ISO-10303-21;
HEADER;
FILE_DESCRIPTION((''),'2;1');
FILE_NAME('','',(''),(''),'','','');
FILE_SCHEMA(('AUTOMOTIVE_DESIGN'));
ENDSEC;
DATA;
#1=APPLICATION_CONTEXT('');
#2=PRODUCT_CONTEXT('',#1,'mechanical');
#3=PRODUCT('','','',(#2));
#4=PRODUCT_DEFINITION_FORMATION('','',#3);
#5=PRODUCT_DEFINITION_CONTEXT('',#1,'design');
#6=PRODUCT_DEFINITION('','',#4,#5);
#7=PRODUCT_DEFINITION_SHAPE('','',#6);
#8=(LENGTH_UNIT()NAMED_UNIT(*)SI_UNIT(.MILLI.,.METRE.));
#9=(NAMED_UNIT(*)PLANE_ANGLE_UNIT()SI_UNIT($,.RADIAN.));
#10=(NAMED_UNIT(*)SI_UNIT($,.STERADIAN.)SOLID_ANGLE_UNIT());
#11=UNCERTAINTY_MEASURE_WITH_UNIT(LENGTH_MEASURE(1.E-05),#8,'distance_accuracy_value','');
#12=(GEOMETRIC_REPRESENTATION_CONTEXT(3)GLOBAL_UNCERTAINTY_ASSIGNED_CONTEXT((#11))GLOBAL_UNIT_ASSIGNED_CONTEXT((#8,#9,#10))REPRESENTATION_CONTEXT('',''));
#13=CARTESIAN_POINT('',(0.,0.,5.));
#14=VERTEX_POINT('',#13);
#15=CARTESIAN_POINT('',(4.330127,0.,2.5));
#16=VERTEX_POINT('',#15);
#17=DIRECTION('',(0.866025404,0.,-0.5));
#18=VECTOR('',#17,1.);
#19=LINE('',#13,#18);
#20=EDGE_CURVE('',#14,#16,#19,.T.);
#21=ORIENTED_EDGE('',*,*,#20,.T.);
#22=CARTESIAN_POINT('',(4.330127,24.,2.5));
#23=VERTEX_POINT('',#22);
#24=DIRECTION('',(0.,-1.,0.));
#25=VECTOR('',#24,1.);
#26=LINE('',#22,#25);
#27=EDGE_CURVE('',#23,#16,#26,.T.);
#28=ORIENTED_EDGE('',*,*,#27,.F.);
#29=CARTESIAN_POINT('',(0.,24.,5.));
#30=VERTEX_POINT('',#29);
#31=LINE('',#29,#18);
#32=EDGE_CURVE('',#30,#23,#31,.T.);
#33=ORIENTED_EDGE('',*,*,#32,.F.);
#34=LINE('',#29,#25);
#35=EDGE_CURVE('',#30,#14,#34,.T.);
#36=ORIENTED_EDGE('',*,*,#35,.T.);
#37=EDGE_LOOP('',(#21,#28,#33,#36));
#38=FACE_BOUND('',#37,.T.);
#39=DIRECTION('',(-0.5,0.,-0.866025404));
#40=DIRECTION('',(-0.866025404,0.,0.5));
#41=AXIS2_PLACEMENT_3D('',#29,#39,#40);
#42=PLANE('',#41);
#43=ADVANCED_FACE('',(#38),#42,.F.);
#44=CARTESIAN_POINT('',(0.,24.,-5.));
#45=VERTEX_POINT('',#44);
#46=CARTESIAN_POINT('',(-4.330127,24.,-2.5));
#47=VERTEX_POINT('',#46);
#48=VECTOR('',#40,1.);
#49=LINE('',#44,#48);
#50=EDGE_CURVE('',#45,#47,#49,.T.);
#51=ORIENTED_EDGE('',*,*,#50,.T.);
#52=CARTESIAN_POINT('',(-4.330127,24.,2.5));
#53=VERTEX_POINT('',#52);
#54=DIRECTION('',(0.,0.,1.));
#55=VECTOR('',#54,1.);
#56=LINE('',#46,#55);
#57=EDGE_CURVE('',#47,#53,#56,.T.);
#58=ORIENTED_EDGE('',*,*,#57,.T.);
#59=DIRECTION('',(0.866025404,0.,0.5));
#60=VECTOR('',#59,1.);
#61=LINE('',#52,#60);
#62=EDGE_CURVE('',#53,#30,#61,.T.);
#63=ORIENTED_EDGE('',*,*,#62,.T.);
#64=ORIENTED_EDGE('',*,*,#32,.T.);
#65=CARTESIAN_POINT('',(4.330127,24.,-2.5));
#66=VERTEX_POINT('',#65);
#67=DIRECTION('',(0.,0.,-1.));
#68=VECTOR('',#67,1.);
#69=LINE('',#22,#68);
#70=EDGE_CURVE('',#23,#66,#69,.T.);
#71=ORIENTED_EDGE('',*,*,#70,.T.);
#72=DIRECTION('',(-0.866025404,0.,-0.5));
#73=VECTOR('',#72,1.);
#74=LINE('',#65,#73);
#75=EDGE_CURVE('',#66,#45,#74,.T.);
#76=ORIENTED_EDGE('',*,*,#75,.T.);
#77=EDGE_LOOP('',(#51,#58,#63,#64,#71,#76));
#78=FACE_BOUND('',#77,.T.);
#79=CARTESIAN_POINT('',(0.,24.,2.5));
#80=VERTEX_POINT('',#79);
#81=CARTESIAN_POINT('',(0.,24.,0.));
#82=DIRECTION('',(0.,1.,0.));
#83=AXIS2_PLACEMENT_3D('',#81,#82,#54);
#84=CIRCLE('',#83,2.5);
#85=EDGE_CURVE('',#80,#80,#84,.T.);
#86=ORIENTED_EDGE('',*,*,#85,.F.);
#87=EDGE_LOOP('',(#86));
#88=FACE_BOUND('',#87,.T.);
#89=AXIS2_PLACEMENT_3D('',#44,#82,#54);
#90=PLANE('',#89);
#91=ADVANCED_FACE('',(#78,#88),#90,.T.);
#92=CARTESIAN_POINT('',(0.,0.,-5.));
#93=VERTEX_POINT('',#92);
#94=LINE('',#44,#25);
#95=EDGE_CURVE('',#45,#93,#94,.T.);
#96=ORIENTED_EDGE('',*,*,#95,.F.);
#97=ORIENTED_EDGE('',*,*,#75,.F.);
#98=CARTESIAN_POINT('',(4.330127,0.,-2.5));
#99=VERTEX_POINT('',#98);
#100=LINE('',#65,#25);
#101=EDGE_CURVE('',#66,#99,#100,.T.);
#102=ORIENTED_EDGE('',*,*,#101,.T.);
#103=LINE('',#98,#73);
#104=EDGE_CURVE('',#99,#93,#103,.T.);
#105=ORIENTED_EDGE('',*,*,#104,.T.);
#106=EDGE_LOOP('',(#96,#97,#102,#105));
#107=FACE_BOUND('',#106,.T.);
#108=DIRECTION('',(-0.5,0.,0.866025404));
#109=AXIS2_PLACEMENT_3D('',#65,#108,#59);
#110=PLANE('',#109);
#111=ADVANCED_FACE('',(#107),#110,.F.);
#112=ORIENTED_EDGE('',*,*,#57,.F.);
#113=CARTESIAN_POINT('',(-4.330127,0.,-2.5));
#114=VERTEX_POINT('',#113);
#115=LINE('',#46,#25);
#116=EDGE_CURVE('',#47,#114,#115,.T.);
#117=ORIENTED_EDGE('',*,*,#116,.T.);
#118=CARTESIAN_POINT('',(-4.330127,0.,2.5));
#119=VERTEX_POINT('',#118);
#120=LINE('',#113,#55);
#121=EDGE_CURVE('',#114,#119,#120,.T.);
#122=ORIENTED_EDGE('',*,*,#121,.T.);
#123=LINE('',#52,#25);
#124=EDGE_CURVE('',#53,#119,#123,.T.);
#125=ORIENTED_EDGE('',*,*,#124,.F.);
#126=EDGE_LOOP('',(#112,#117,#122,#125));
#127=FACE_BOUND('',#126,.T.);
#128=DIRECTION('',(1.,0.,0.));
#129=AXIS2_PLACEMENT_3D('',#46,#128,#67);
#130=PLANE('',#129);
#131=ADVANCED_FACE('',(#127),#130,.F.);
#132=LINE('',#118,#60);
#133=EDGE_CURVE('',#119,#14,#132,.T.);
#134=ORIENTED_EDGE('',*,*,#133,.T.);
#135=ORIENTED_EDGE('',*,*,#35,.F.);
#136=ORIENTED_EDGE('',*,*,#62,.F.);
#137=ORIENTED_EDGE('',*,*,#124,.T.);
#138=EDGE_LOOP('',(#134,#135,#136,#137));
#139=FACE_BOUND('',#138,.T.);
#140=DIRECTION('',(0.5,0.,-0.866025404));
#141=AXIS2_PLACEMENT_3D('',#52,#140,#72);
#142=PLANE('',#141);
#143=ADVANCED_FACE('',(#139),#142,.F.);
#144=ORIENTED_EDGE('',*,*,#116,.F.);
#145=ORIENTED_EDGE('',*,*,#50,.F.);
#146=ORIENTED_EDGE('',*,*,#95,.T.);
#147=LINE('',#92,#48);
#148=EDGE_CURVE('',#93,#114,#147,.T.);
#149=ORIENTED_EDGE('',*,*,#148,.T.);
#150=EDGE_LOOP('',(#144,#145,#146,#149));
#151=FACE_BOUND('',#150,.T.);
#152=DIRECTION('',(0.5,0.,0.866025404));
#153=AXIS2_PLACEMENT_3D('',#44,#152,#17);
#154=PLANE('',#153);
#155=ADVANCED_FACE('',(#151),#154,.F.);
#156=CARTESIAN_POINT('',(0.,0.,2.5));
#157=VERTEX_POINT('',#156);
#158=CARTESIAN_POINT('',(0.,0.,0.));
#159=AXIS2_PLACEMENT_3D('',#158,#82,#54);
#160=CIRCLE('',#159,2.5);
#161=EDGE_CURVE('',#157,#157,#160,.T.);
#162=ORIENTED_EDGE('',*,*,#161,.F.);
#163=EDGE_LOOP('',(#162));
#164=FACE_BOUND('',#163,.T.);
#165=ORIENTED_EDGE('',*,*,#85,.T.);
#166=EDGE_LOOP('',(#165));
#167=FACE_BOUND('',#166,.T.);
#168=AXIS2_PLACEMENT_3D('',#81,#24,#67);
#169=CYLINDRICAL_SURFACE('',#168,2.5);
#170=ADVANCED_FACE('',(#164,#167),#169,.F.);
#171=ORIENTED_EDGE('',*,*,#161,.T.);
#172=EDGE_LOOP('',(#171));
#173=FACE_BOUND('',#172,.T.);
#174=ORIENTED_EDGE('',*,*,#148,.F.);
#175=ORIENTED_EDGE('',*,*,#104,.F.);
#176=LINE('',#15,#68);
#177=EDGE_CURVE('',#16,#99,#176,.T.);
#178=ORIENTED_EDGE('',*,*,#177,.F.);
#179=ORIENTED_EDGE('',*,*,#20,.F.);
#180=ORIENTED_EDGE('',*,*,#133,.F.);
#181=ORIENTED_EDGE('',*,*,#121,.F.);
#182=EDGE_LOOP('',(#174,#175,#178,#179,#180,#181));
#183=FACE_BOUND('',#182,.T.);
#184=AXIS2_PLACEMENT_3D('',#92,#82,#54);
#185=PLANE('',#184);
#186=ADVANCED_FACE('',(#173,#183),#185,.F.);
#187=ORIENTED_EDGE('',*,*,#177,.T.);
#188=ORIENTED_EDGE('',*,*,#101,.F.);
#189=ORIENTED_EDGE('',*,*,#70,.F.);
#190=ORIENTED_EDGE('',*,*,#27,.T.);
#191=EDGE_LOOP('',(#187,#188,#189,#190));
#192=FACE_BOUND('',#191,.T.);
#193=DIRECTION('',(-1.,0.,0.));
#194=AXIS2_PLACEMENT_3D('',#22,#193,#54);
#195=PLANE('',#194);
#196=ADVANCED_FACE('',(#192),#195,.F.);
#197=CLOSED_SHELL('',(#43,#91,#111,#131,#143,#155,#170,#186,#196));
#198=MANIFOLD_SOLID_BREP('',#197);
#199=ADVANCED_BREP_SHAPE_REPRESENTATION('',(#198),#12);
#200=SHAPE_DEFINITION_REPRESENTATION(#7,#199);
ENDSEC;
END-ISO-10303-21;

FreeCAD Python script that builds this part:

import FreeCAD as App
import Part
import Sketcher
Q = App.Units.Quantity


def add_polygon(sketch, points):
    """Adds a closed chain of lines whose ends are joined by coincident constraints."""
    first, n = sketch.GeometryCount, len(points)
    for a, b in zip(points, points[1:] + points[:1]):
        sketch.addGeometry(Part.LineSegment(App.Vector(*a, 0), App.Vector(*b, 0)), False)
    for i in range(n):
        sketch.addConstraint(Sketcher.Constraint("Coincident", first + i, 2, first + (i + 1) % n, 1))

doc = App.newDocument("Part")
body = doc.addObject("PartDesign::Body", "Body")

# Sketch on XZ plane
sketch1 = doc.addObject("Sketcher::SketchObject", "Sketch")
body.addObject(sketch1)
sketch1.AttachmentSupport = (doc.XZ_Plane, [""])
sketch1.MapMode = "FlatFace"
add_polygon(sketch1, [(0, -5), (-4.3, -2.5), (-4.3, 2.5), (0, 5), (4.3, 2.5), (4.3, -2.5)])  # lines 0-5
sketch1.addGeometry(Part.Circle(App.Vector(0, 0, 0), App.Vector(0, 0, 1), 2.5), False)  # 6
sketch1.addConstraint(Sketcher.Constraint("Vertical", 1))
sketch1.addConstraint(Sketcher.Constraint("Vertical", 4))
sketch1.addConstraint(Sketcher.Constraint("Coincident", 6, 3, -1, 1))
sketch1.addConstraint(Sketcher.Constraint("Symmetric", 0, 2, 3, 2, -1, 1))
sketch1.addConstraint(Sketcher.Constraint("Symmetric", 2, 2, 5, 2, -1, 1))
sketch1.addConstraint(Sketcher.Constraint("PointOnObject", 2, 2, -2))
sketch1.addConstraint(Sketcher.Constraint("Parallel", 2, 5))
sketch1.addConstraint(Sketcher.Constraint("Horizontal", 1, 2, 3, 2))
sketch1.addConstraint(Sketcher.Constraint("Diameter", 6, Q("5 mm")))
sketch1.addConstraint(Sketcher.Constraint("DistanceY", 1, 1, 1, 2, Q("5 mm")))
sketch1.addConstraint(Sketcher.Constraint("Angle", 0, Q("150 deg")))
sketch1.addConstraint(Sketcher.Constraint("Distance", 0, Q("5 mm")))
pad1 = doc.addObject("PartDesign::Pad", "Pad")
body.addObject(pad1)
pad1.Profile = sketch1
pad1.Length = 24
pad1.Reversed = True

doc.recompute()
